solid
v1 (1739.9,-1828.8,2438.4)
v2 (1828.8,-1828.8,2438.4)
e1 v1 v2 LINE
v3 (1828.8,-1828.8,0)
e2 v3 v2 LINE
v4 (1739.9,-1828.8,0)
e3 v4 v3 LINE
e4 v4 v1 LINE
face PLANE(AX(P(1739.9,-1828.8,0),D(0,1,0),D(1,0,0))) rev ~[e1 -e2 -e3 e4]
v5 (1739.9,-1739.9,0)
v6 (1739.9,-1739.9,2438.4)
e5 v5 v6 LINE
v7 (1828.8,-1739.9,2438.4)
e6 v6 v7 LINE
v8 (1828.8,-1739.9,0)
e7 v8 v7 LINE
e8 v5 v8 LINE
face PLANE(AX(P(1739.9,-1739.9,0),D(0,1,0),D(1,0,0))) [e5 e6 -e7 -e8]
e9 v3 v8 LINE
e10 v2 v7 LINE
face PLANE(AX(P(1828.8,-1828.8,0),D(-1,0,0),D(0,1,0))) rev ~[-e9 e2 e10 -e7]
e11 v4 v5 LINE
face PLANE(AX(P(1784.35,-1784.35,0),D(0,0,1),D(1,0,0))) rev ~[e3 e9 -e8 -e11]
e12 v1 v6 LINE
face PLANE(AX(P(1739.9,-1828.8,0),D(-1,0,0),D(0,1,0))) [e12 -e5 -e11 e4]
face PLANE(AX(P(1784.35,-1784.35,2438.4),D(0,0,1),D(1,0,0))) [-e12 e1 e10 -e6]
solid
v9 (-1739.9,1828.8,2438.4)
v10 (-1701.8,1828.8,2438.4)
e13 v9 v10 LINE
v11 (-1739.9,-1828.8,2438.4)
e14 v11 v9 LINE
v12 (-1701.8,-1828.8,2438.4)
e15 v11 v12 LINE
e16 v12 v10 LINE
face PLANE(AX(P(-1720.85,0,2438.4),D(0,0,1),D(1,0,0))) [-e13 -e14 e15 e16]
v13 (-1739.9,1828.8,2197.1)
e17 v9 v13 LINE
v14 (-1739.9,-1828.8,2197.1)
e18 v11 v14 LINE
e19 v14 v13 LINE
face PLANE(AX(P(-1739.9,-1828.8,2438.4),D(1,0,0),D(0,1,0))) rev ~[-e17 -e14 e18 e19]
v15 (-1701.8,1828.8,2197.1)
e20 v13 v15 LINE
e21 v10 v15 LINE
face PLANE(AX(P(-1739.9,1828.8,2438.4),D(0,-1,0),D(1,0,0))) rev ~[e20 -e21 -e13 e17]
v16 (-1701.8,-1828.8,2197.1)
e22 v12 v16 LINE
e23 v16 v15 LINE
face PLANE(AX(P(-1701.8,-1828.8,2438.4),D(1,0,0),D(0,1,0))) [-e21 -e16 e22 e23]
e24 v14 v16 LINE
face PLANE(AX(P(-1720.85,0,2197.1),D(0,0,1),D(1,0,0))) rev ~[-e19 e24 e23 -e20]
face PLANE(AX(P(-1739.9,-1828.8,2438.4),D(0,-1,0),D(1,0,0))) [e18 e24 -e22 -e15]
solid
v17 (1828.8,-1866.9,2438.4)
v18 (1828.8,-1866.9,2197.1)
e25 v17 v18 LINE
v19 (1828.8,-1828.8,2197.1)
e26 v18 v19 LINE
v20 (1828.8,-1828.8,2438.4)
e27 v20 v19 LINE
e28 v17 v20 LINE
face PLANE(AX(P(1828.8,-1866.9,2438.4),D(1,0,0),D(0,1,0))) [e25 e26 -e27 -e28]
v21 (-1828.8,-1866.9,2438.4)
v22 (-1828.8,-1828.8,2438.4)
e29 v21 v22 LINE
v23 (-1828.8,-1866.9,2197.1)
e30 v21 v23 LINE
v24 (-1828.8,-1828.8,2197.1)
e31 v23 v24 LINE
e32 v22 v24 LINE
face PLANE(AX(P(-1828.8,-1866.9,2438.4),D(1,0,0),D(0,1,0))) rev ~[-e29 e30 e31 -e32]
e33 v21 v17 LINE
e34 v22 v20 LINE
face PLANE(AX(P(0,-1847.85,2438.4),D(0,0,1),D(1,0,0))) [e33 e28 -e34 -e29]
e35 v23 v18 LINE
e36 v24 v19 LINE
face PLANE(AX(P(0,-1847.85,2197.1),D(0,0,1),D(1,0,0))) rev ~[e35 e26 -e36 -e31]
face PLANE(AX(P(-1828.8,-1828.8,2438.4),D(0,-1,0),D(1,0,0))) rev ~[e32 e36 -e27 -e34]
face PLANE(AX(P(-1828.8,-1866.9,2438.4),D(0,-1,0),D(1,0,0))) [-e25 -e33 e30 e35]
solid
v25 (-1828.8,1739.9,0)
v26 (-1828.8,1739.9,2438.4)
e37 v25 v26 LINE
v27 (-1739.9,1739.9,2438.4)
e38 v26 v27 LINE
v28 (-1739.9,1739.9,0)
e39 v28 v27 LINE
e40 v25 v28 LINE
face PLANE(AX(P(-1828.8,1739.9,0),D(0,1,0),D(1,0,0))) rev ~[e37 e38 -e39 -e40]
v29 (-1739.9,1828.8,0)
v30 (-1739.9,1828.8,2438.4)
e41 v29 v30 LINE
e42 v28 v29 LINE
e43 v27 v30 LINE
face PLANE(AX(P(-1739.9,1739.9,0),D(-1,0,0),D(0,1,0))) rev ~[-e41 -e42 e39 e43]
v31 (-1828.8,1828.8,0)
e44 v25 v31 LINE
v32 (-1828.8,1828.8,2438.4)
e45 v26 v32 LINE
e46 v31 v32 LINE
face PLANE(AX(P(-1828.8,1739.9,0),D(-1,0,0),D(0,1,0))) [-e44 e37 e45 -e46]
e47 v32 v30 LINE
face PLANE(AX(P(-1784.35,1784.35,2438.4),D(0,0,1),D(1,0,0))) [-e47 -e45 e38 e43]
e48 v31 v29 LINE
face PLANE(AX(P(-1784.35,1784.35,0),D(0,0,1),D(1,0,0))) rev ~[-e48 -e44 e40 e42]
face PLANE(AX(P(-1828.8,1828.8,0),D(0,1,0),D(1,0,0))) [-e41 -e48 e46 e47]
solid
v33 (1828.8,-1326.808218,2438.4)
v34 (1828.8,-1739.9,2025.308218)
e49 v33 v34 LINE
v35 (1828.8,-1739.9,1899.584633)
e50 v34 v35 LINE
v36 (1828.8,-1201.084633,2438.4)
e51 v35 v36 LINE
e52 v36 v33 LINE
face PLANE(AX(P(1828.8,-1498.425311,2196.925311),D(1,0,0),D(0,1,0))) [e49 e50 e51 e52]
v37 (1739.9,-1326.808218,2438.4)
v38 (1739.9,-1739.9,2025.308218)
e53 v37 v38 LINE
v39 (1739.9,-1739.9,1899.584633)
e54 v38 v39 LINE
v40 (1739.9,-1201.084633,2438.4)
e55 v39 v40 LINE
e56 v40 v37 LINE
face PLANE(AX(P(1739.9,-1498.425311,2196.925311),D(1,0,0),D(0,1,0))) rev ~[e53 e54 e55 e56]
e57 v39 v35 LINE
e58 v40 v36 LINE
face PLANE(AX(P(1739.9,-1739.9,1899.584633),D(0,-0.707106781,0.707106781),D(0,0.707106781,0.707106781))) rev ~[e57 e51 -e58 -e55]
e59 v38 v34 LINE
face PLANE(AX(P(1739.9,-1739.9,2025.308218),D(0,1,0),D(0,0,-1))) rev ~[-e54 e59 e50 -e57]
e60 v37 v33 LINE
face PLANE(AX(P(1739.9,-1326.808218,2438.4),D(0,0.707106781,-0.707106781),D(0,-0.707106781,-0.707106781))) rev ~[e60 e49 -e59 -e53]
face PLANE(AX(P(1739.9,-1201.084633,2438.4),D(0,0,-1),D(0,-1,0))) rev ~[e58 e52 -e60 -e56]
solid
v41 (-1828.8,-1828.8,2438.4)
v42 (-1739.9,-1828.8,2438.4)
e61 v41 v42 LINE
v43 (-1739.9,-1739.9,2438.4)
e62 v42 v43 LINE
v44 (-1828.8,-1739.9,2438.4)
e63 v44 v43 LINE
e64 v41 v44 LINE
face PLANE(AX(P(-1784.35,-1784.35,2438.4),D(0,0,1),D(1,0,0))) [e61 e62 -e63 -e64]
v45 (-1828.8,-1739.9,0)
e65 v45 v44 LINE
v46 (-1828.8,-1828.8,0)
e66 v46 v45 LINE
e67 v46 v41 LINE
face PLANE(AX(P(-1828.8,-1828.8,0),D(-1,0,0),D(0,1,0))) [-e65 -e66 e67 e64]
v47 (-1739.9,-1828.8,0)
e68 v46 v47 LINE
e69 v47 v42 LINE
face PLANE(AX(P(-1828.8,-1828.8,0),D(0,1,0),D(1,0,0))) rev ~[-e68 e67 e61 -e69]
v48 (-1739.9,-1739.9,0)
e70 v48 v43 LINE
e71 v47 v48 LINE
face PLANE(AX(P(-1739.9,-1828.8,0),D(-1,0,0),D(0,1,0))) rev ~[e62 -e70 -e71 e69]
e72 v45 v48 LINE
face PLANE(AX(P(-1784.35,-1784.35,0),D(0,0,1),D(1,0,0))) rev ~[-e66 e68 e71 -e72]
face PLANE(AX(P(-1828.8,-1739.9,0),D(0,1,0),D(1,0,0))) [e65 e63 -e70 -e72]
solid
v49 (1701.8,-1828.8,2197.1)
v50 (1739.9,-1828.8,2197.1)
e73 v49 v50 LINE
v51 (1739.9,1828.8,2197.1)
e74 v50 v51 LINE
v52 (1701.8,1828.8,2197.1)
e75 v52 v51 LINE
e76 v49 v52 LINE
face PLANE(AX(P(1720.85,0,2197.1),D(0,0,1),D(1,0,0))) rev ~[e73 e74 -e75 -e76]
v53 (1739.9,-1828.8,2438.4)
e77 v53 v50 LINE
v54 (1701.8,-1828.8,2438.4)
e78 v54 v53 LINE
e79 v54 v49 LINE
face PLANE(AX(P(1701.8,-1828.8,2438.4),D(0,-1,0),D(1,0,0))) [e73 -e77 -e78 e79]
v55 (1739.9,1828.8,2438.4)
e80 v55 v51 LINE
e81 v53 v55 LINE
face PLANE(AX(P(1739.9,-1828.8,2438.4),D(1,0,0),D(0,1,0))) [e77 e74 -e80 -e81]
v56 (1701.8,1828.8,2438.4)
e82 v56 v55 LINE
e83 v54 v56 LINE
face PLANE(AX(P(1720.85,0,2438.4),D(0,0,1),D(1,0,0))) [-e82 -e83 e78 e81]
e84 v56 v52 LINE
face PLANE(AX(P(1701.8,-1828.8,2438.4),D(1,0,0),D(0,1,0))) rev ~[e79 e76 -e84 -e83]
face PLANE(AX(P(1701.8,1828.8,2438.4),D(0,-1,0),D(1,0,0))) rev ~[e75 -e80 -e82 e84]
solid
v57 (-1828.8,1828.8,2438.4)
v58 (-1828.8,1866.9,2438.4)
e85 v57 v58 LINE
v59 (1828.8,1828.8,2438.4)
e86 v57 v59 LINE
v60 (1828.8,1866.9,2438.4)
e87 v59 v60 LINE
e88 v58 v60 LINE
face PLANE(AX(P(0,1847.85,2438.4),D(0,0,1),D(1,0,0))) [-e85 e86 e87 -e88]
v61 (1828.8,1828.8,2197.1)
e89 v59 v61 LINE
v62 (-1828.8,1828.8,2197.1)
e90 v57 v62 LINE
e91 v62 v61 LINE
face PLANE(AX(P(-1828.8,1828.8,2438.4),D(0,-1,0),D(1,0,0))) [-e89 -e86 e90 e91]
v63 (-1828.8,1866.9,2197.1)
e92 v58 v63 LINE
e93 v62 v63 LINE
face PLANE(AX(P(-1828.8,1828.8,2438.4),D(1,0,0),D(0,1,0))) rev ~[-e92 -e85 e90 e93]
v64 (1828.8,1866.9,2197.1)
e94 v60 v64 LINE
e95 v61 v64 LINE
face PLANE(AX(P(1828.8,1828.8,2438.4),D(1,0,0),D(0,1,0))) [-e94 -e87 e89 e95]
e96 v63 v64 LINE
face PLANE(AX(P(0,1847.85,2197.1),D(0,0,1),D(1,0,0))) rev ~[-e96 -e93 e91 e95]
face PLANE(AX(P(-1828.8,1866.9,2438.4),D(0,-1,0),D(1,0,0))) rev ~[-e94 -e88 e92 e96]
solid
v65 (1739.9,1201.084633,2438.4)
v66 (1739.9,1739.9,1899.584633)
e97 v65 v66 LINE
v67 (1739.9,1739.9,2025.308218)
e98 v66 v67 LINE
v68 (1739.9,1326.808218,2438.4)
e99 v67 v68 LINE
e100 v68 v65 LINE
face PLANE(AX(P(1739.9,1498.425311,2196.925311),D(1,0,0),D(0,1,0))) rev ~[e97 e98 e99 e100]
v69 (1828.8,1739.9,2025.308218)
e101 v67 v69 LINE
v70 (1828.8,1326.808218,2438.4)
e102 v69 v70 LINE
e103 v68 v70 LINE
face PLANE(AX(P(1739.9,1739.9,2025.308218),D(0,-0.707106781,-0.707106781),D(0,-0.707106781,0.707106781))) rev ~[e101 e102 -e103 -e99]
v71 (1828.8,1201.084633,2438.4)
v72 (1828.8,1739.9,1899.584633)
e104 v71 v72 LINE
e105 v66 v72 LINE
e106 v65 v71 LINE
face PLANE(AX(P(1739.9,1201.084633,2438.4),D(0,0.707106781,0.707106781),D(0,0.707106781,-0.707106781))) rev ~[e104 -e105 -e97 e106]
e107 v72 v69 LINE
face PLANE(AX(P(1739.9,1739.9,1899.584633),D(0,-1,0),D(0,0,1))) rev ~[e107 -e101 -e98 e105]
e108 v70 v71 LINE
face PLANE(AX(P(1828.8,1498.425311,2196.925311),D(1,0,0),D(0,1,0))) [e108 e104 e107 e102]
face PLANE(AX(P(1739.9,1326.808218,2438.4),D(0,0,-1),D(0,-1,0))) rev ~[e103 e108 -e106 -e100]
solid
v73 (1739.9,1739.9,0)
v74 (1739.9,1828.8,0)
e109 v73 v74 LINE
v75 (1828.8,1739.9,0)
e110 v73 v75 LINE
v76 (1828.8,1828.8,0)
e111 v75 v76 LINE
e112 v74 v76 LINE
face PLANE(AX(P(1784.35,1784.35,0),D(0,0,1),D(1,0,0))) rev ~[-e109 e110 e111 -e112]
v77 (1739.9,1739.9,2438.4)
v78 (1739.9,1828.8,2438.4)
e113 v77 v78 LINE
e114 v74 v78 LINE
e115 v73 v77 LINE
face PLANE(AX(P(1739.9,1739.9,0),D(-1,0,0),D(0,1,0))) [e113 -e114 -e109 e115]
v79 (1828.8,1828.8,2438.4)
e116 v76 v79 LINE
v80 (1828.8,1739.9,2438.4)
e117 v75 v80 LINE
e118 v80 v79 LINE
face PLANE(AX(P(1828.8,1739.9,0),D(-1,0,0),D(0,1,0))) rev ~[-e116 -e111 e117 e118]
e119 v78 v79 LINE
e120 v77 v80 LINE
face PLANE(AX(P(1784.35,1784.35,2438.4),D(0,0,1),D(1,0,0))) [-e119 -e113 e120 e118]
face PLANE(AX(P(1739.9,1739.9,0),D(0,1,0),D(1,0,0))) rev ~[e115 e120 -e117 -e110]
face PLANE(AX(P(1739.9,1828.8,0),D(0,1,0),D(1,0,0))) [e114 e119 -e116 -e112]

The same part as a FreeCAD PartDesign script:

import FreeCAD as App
import Part
import Sketcher
from FreeCAD import Vector
Q = App.Units.Quantity

doc = App.newDocument("Part")
body = doc.addObject("PartDesign::Body", "Body")

sketch1 = body.newObject("Sketcher::SketchObject", "Sketch")
sketch1.AttachmentSupport = (doc.getObject("XY_Plane"), [""])
sketch1.MapMode = "FlatFace"
sketch1.addGeometry([
    Part.LineSegment(Vector(-1828.8, 1828.8, 0), Vector(-1828.8, 1739.9, 0)),
    Part.LineSegment(Vector(-1828.8, 1739.9, 0), Vector(-1739.9, 1739.9, 0)),
    Part.LineSegment(Vector(-1739.9, 1739.9, 0), Vector(-1739.9, 1828.8, 0)),
    Part.LineSegment(Vector(-1739.9, 1828.8, 0), Vector(-1828.8, 1828.8, 0)),
], False)
sketch1.addConstraint([
    Sketcher.Constraint("Coincident", 0, 2, 1, 1),
    Sketcher.Constraint("Coincident", 1, 2, 2, 1),
    Sketcher.Constraint("Coincident", 2, 2, 3, 1),
    Sketcher.Constraint("Coincident", 3, 2, 0, 1),
    Sketcher.Constraint("Vertical", 0),
    Sketcher.Constraint("Horizontal", 1),
    Sketcher.Constraint("Vertical", 2),
    Sketcher.Constraint("Horizontal", 3),
    Sketcher.Constraint("Equal", 3, 0),
    Sketcher.Constraint("DistanceX", 1, 1, 1, 2, Q("3.5 in")),
    Sketcher.Constraint("DistanceX", 0, 2, -1, 1, Q("72 in")),
    Sketcher.Constraint("DistanceY", -1, 1, 2, 2, Q("72 in")),
])
pad1 = body.newObject("PartDesign::Pad", "Pad")
pad1.Profile = sketch1
pad1.Length = Q("96 in")
body2 = doc.addObject("PartDesign::Body", "Body001")

sketch2 = body2.newObject("Sketcher::SketchObject", "Sketch001")
sketch2.AttachmentSupport = (doc.getObject("XY_Plane001"), [""])
sketch2.MapMode = "FlatFace"
sketch2.addGeometry([
    Part.LineSegment(Vector(1739.9, 1828.8, 0), Vector(1739.9, 1739.9, 0)),
    Part.LineSegment(Vector(1739.9, 1739.9, 0), Vector(1828.8, 1739.9, 0)),
    Part.LineSegment(Vector(1828.8, 1739.9, 0), Vector(1828.8, 1828.8, 0)),
    Part.LineSegment(Vector(1828.8, 1828.8, 0), Vector(1739.9, 1828.8, 0)),
], False)
sketch2.addConstraint([
    Sketcher.Constraint("Coincident", 0, 2, 1, 1),
    Sketcher.Constraint("Coincident", 1, 2, 2, 1),
    Sketcher.Constraint("Coincident", 2, 2, 3, 1),
    Sketcher.Constraint("Coincident", 3, 2, 0, 1),
    Sketcher.Constraint("Vertical", 0),
    Sketcher.Constraint("Horizontal", 1),
    Sketcher.Constraint("Vertical", 2),
    Sketcher.Constraint("Horizontal", 3),
    Sketcher.Constraint("Equal", 3, 0),
    Sketcher.Constraint("DistanceX", 1, 1, 1, 2, Q("3.5 in")),
    Sketcher.Constraint("DistanceX", -1, 1, 1, 2, Q("72 in")),
    Sketcher.Constraint("DistanceY", -1, 1, 2, 2, Q("72 in")),
])
pad2 = body2.newObject("PartDesign::Pad", "Pad001")
pad2.Profile = sketch2
pad2.Length = Q("96 in")
body3 = doc.addObject("PartDesign::Body", "Body002")

sketch3 = body3.newObject("Sketcher::SketchObject", "Sketch002")
sketch3.AttachmentSupport = (doc.getObject("XY_Plane002"), [""])
sketch3.MapMode = "FlatFace"
sketch3.addGeometry([
    Part.LineSegment(Vector(1739.9, -1739.9, 0), Vector(1739.9, -1828.8, 0)),
    Part.LineSegment(Vector(1739.9, -1828.8, 0), Vector(1828.8, -1828.8, 0)),
    Part.LineSegment(Vector(1828.8, -1828.8, 0), Vector(1828.8, -1739.9, 0)),
    Part.LineSegment(Vector(1828.8, -1739.9, 0), Vector(1739.9, -1739.9, 0)),
], False)
sketch3.addConstraint([
    Sketcher.Constraint("Coincident", 0, 2, 1, 1),
    Sketcher.Constraint("Coincident", 1, 2, 2, 1),
    Sketcher.Constraint("Coincident", 2, 2, 3, 1),
    Sketcher.Constraint("Coincident", 3, 2, 0, 1),
    Sketcher.Constraint("Vertical", 0),
    Sketcher.Constraint("Horizontal", 1),
    Sketcher.Constraint("Vertical", 2),
    Sketcher.Constraint("Horizontal", 3),
    Sketcher.Constraint("Equal", 3, 0),
    Sketcher.Constraint("DistanceX", 1, 1, 1, 2, Q("3.5 in")),
    Sketcher.Constraint("DistanceY", 0, 2, -1, 1, Q("72 in")),
    Sketcher.Constraint("DistanceX", -1, 1, 1, 2, Q("72 in")),
])
pad3 = body3.newObject("PartDesign::Pad", "Pad002")
pad3.Profile = sketch3
pad3.Length = Q("96 in")
body4 = doc.addObject("PartDesign::Body", "Body003")

sketch4 = body4.newObject("Sketcher::SketchObject", "Sketch003")
sketch4.AttachmentSupport = (doc.getObject("XY_Plane003"), [""])
sketch4.MapMode = "FlatFace"
sketch4.addGeometry([
    Part.LineSegment(Vector(-1828.8, -1739.9, 0), Vector(-1828.8, -1828.8, 0)),
    Part.LineSegment(Vector(-1828.8, -1828.8, 0), Vector(-1739.9, -1828.8, 0)),
    Part.LineSegment(Vector(-1739.9, -1828.8, 0), Vector(-1739.9, -1739.9, 0)),
    Part.LineSegment(Vector(-1739.9, -1739.9, 0), Vector(-1828.8, -1739.9, 0)),
], False)
sketch4.addConstraint([
    Sketcher.Constraint("Coincident", 0, 2, 1, 1),
    Sketcher.Constraint("Coincident", 1, 2, 2, 1),
    Sketcher.Constraint("Coincident", 2, 2, 3, 1),
    Sketcher.Constraint("Coincident", 3, 2, 0, 1),
    Sketcher.Constraint("Vertical", 0),
    Sketcher.Constraint("Horizontal", 1),
    Sketcher.Constraint("Vertical", 2),
    Sketcher.Constraint("Horizontal", 3),
    Sketcher.Constraint("Equal", 3, 0),
    Sketcher.Constraint("DistanceX", 1, 1, 1, 2, Q("3.5 in")),
    Sketcher.Constraint("DistanceX", 0, 2, -1, 1, Q("72 in")),
    Sketcher.Constraint("DistanceY", 0, 2, -1, 1, Q("72 in")),
])
pad4 = body4.newObject("PartDesign::Pad", "Pad003")
pad4.Profile = sketch4
pad4.Length = Q("96 in")
body5 = doc.addObject("PartDesign::Body", "Body004")

sketch5 = body5.newObject("Sketcher::SketchObject", "Sketch004")
sketch5.AttachmentSupport = (doc.getObject("XY_Plane004"), [""])
sketch5.MapMode = "FlatFace"
sketch5.AttachmentOffset = App.Placement(Vector(0, 0, 96 * 25.4), App.Rotation())
sketch5.addGeometry([
    Part.LineSegment(Vector(-1739.9, 1828.8, 0), Vector(-1739.9, -1828.8, 0)),
    Part.LineSegment(Vector(-1739.9, -1828.8, 0), Vector(-1701.8, -1828.8, 0)),
    Part.LineSegment(Vector(-1701.8, -1828.8, 0), Vector(-1701.8, 1828.8, 0)),
    Part.LineSegment(Vector(-1701.8, 1828.8, 0), Vector(-1739.9, 1828.8, 0)),
], False)
sketch5.addConstraint([
    Sketcher.Constraint("Coincident", 0, 2, 1, 1),
    Sketcher.Constraint("Coincident", 1, 2, 2, 1),
    Sketcher.Constraint("Coincident", 2, 2, 3, 1),
    Sketcher.Constraint("Coincident", 3, 2, 0, 1),
    Sketcher.Constraint("Vertical", 0),
    Sketcher.Constraint("Horizontal", 1),
    Sketcher.Constraint("Vertical", 2),
    Sketcher.Constraint("Horizontal", 3),
    Sketcher.Constraint("DistanceY", 0, 2, 0, 1, Q("144 in")),
    Sketcher.Constraint("DistanceX", 1, 1, 1, 2, Q("1.5 in")),
    Sketcher.Constraint("DistanceY", 0, 2, -1, 1, Q("72 in")),
    Sketcher.Constraint("DistanceX", 1, 2, -1, 1, Q("67 in")),
])
pad5 = body5.newObject("PartDesign::Pad", "Pad004")
pad5.Profile = sketch5
pad5.Length = Q("9.5 in")
pad5.Reversed = True
body6 = doc.addObject("PartDesign::Body", "Body005")

sketch6 = body6.newObject("Sketcher::SketchObject", "Sketch005")
sketch6.AttachmentSupport = (doc.getObject("XY_Plane005"), [""])
sketch6.MapMode = "FlatFace"
sketch6.AttachmentOffset = App.Placement(Vector(0, 0, 96 * 25.4), App.Rotation())
sketch6.addGeometry([
    Part.LineSegment(Vector(1701.8, 1828.8, 0), Vector(1701.8, -1828.8, 0)),
    Part.LineSegment(Vector(1701.8, -1828.8, 0), Vector(1739.9, -1828.8, 0)),
    Part.LineSegment(Vector(1739.9, -1828.8, 0), Vector(1739.9, 1828.8, 0)),
    Part.LineSegment(Vector(1739.9, 1828.8, 0), Vector(1701.8, 1828.8, 0)),
], False)
sketch6.addConstraint([
    Sketcher.Constraint("Coincident", 0, 2, 1, 1),
    Sketcher.Constraint("Coincident", 1, 2, 2, 1),
    Sketcher.Constraint("Coincident", 2, 2, 3, 1),
    Sketcher.Constraint("Coincident", 3, 2, 0, 1),
    Sketcher.Constraint("Vertical", 0),
    Sketcher.Constraint("Horizontal", 1),
    Sketcher.Constraint("Vertical", 2),
    Sketcher.Constraint("Horizontal", 3),
    Sketcher.Constraint("DistanceY", 0, 2, 0, 1, Q("144 in")),
    Sketcher.Constraint("DistanceX", 1, 1, 1, 2, Q("1.5 in")),
    Sketcher.Constraint("DistanceX", -1, 1, 0, 2, Q("67 in")),
    Sketcher.Constraint("DistanceY", 0, 2, -1, 1, Q("72 in")),
])
pad6 = body6.newObject("PartDesign::Pad", "Pad005")
pad6.Profile = sketch6
pad6.Length = Q("9.5 in")
pad6.Reversed = True
body7 = doc.addObject("PartDesign::Body", "Body006")

sketch7 = body7.newObject("Sketcher::SketchObject", "Sketch006")
sketch7.AttachmentSupport = (doc.getObject("XY_Plane006"), [""])
sketch7.MapMode = "FlatFace"
sketch7.AttachmentOffset = App.Placement(Vector(0, 0, 96 * 25.4), App.Rotation())
sketch7.addGeometry([
    Part.LineSegment(Vector(-1828.8, -1828.8, 0), Vector(-1828.8, -1866.9, 0)),
    Part.LineSegment(Vector(-1828.8, -1866.9, 0), Vector(1828.8, -1866.9, 0)),
    Part.LineSegment(Vector(1828.8, -1866.9, 0), Vector(1828.8, -1828.8, 0)),
    Part.LineSegment(Vector(1828.8, -1828.8, 0), Vector(-1828.8, -1828.8, 0)),
], False)
sketch7.addConstraint([
    Sketcher.Constraint("Coincident", 0, 2, 1, 1),
    Sketcher.Constraint("Coincident", 1, 2, 2, 1),
    Sketcher.Constraint("Coincident", 2, 2, 3, 1),
    Sketcher.Constraint("Coincident", 3, 2, 0, 1),
    Sketcher.Constraint("Vertical", 0),
    Sketcher.Constraint("Horizontal", 1),
    Sketcher.Constraint("Vertical", 2),
    Sketcher.Constraint("Horizontal", 3),
    Sketcher.Constraint("DistanceX", 1, 1, 1, 2, Q("144 in")),
    Sketcher.Constraint("DistanceY", 0, 2, 0, 1, Q("1.5 in")),
    Sketcher.Constraint("DistanceX", 0, 2, -1, 1, Q("72 in")),
    Sketcher.Constraint("DistanceY", 2, 2, -1, 1, Q("72 in")),
])
pad7 = body7.newObject("PartDesign::Pad", "Pad006")
pad7.Profile = sketch7
pad7.Length = Q("9.5 in")
pad7.Reversed = True
body8 = doc.addObject("PartDesign::Body", "Body007")

sketch8 = body8.newObject("Sketcher::SketchObject", "Sketch007")
sketch8.AttachmentSupport = (doc.getObject("XY_Plane007"), [""])
sketch8.MapMode = "FlatFace"
sketch8.AttachmentOffset = App.Placement(Vector(0, 0, 96 * 25.4), App.Rotation())
sketch8.addGeometry([
    Part.LineSegment(Vector(-1828.8, 1866.9, 0), Vector(-1828.8, 1828.8, 0)),
    Part.LineSegment(Vector(-1828.8, 1828.8, 0), Vector(1828.8, 1828.8, 0)),
    Part.LineSegment(Vector(1828.8, 1828.8, 0), Vector(1828.8, 1866.9, 0)),
    Part.LineSegment(Vector(1828.8, 1866.9, 0), Vector(-1828.8, 1866.9, 0)),
], False)
sketch8.addConstraint([
    Sketcher.Constraint("Coincident", 0, 2, 1, 1),
    Sketcher.Constraint("Coincident", 1, 2, 2, 1),
    Sketcher.Constraint("Coincident", 2, 2, 3, 1),
    Sketcher.Constraint("Coincident", 3, 2, 0, 1),
    Sketcher.Constraint("Vertical", 0),
    Sketcher.Constraint("Horizontal", 1),
    Sketcher.Constraint("Vertical", 2),
    Sketcher.Constraint("Horizontal", 3),
    Sketcher.Constraint("DistanceX", 1, 1, 1, 2, Q("144 in")),
    Sketcher.Constraint("DistanceY", 0, 2, 0, 1, Q("1.5 in")),
    Sketcher.Constraint("DistanceX", 0, 2, -1, 1, Q("72 in")),
    Sketcher.Constraint("DistanceY", -1, 1, 0, 2, Q("72 in")),
])
pad8 = body8.newObject("PartDesign::Pad", "Pad007")
pad8.Profile = sketch8
pad8.Length = Q("9.5 in")
pad8.Reversed = True
body9 = doc.addObject("PartDesign::Body", "Body008")

sketch9 = body9.newObject("Sketcher::SketchObject", "Sketch008")
sketch9.AttachmentSupport = (doc.getObject("YZ_Plane008"), [""])
sketch9.MapMode = "FlatFace"
sketch9.AttachmentOffset = App.Placement(Vector(0, 0, 68.5 * 25.4), App.Rotation())
sketch9.addGeometry([
    Part.LineSegment(Vector(-1326.808218, 2438.4, 0), Vector(-1739.9, 2025.308218, 0)),
    Part.LineSegment(Vector(-1739.9, 2025.308218, 0), Vector(-1739.9, 1899.584633, 0)),
    Part.LineSegment(Vector(-1739.9, 1899.584633, 0), Vector(-1201.084633, 2438.4, 0)),
    Part.LineSegment(Vector(-1201.084633, 2438.4, 0), Vector(-1326.808218, 2438.4, 0)),
], False)
sketch9.addConstraint([
    Sketcher.Constraint("Coincident", 0, 2, 1, 1),
    Sketcher.Constraint("Coincident", 1, 2, 2, 1),
    Sketcher.Constraint("Coincident", 2, 2, 3, 1),
    Sketcher.Constraint("Coincident", 3, 2, 0, 1),
    Sketcher.Constraint("Vertical", 1),
    Sketcher.Constraint("Horizontal", 3),
    Sketcher.Constraint("Parallel", 0, 2),
    Sketcher.Constraint("Equal", 3, 1),
    Sketcher.Constraint("Distance", 0, Q("23 in")),
    Sketcher.Constraint("Distance", 2, Q("30 in")),
    Sketcher.Constraint("DistanceY", -1, 1, 2, 2, Q("96 in")),
    Sketcher.Constraint("DistanceX", 0, 2, -1, 1, Q("68.5 in")),
])
pad9 = body9.newObject("PartDesign::Pad", "Pad008")
pad9.Profile = sketch9
pad9.Length = Q("3.5 in")
body10 = doc.addObject("PartDesign::Body", "Body009")

sketch10 = body10.newObject("Sketcher::SketchObject", "Sketch009")
sketch10.AttachmentSupport = (doc.getObject("YZ_Plane009"), [""])
sketch10.MapMode = "FlatFace"
sketch10.AttachmentOffset = App.Placement(Vector(0, 0, 68.5 * 25.4), App.Rotation())
sketch10.addGeometry([
    Part.LineSegment(Vector(1739.9, 1899.584633, 0), Vector(1739.9, 2025.308218, 0)),
    Part.LineSegment(Vector(1739.9, 2025.308218, 0), Vector(1326.808218, 2438.4, 0)),
    Part.LineSegment(Vector(1326.808218, 2438.4, 0), Vector(1201.084633, 2438.4, 0)),
    Part.LineSegment(Vector(1201.084633, 2438.4, 0), Vector(1739.9, 1899.584633, 0)),
], False)
sketch10.addConstraint([
    Sketcher.Constraint("Coincident", 0, 2, 1, 1),
    Sketcher.Constraint("Coincident", 1, 2, 2, 1),
    Sketcher.Constraint("Coincident", 2, 2, 3, 1),
    Sketcher.Constraint("Coincident", 3, 2, 0, 1),
    Sketcher.Constraint("Vertical", 0),
    Sketcher.Constraint("Horizontal", 2),
    Sketcher.Constraint("Parallel", 1, 3),
    Sketcher.Constraint("Equal", 2, 0),
    Sketcher.Constraint("Distance", 1, Q("23 in")),
    Sketcher.Constraint("Distance", 3, Q("30 in")),
    Sketcher.Constraint("DistanceY", -1, 1, 1, 2, Q("96 in")),
    Sketcher.Constraint("DistanceX", -1, 1, 0, 2, Q("68.5 in")),
])
pad10 = body10.newObject("PartDesign::Pad", "Pad009")
pad10.Profile = sketch10
pad10.Length = Q("3.5 in")

doc.recompute()
